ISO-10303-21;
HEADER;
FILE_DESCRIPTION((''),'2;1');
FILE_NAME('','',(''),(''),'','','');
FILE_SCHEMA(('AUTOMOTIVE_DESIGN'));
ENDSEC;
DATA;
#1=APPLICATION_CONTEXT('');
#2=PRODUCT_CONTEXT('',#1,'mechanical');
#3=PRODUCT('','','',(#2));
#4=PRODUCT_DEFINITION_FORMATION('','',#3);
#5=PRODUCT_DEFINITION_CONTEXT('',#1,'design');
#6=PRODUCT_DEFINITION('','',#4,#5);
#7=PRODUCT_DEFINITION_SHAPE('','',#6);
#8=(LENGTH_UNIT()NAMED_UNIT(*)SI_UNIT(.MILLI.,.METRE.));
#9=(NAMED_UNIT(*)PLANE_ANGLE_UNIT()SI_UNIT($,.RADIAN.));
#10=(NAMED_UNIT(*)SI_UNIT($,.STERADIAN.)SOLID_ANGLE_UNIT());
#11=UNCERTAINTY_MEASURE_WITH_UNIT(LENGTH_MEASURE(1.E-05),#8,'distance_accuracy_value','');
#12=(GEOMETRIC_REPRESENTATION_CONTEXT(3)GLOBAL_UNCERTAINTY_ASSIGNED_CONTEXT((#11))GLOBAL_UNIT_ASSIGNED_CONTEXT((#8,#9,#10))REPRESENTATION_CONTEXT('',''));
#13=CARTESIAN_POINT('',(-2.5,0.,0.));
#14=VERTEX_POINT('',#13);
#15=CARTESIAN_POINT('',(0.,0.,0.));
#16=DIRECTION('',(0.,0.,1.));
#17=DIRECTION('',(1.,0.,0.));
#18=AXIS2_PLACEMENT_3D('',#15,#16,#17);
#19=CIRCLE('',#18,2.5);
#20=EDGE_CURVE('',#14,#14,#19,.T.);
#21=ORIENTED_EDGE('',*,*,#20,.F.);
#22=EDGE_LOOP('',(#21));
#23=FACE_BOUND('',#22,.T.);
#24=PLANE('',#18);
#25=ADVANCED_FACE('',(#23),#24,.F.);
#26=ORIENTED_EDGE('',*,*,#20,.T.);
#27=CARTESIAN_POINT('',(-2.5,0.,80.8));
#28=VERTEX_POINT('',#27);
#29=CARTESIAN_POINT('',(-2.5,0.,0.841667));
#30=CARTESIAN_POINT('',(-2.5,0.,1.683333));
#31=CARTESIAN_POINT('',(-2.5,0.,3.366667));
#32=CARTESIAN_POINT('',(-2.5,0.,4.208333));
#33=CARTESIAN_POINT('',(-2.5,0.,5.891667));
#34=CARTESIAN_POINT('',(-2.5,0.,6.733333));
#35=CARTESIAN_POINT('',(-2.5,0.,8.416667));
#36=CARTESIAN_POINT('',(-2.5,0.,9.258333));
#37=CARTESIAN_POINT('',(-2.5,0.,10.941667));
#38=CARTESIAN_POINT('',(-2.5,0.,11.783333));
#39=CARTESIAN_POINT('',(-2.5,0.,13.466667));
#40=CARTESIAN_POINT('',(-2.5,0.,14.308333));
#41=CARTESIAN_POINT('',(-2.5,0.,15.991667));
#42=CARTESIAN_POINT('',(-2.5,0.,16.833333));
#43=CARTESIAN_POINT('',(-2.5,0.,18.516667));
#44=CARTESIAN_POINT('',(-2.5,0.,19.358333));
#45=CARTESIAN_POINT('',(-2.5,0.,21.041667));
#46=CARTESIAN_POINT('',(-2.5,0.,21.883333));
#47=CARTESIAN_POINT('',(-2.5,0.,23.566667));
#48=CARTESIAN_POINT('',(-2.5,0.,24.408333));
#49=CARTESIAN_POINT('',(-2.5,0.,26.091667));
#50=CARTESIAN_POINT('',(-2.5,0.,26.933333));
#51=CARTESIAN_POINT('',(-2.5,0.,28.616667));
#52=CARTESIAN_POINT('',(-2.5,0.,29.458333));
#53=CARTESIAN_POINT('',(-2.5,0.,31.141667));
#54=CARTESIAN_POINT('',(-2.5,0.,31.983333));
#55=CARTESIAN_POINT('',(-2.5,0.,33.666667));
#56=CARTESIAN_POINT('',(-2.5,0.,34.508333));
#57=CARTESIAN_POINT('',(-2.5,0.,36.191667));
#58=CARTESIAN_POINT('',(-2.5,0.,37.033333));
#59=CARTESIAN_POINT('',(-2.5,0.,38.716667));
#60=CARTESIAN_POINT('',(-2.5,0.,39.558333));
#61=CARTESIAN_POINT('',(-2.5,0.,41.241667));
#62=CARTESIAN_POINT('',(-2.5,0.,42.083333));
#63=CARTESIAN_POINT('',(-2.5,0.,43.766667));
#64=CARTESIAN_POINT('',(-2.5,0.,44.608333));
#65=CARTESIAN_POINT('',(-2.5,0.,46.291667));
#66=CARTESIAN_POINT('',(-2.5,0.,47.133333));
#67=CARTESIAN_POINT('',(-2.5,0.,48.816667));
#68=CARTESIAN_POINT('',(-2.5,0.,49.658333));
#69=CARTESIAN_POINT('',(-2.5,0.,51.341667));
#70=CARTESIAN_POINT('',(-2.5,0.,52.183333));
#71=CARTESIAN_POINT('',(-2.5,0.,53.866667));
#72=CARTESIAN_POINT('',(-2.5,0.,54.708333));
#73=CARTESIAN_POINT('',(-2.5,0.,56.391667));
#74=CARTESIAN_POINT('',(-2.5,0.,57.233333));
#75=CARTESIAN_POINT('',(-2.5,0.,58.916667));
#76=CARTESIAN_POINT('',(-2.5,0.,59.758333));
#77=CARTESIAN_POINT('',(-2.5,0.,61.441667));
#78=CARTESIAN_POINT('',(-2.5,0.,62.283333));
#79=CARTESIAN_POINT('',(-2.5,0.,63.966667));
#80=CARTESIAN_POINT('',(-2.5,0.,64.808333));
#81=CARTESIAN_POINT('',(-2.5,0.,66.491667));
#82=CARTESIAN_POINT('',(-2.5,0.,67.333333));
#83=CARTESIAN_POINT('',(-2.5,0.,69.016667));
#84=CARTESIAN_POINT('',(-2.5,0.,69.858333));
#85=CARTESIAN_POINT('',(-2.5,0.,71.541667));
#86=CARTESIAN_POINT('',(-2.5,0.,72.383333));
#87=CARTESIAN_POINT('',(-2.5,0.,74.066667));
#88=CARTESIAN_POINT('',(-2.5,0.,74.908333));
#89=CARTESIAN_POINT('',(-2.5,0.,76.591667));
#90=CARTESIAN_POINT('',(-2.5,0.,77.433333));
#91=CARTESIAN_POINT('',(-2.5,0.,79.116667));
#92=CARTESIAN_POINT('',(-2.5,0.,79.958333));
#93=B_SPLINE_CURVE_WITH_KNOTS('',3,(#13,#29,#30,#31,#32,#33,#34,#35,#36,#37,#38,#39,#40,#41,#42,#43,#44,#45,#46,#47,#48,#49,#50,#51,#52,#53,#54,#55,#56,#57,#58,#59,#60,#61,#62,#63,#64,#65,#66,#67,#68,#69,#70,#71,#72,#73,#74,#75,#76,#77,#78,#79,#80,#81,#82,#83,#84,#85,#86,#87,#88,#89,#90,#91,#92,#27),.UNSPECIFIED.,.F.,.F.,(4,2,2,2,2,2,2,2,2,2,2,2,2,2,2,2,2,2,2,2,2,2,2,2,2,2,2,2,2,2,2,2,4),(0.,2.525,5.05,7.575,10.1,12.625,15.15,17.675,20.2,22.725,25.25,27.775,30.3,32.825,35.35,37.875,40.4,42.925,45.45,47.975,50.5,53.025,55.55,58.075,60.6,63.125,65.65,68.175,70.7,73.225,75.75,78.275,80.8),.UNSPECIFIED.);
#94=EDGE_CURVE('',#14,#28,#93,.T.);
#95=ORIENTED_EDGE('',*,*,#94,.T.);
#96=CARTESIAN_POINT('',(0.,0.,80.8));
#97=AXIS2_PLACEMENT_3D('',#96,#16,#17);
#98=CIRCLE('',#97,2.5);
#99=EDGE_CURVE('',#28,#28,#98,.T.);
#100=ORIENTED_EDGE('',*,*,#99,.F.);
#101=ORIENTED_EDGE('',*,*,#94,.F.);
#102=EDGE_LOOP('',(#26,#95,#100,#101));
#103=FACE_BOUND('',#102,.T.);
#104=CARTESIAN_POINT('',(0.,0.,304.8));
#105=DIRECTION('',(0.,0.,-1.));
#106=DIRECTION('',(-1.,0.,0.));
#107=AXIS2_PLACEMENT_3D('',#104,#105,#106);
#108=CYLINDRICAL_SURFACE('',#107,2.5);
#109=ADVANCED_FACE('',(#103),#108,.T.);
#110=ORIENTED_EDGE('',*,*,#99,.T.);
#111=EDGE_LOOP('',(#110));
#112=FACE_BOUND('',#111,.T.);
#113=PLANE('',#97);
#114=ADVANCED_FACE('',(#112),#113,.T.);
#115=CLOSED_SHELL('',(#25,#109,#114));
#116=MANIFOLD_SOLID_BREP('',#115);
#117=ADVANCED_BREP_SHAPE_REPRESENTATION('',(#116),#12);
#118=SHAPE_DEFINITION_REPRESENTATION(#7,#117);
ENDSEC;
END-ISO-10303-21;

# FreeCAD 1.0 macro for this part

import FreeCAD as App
import Part
import Sketcher
from FreeCAD import Vector

doc = App.newDocument("Part")
body = doc.addObject("PartDesign::Body", "Body")

sketch1 = body.newObject("Sketcher::SketchObject", "Sketch")
sketch1.AttachmentSupport = (doc.getObject("XY_Plane"), [""])
sketch1.MapMode = "FlatFace"
sketch1.addGeometry(Part.Circle(Vector(0, 0, 0), Vector(0, 0, 1), 2.5), False)
sketch1.addConstraint(Sketcher.Constraint("Coincident", 0, 3, -1, 1))
sketch1.addConstraint(Sketcher.Constraint("Diameter", 0, 5.0))
pad1 = body.newObject("PartDesign::Pad", "Pad")
pad1.Profile = sketch1
pad1.Length = 304.8

sketch2 = body.newObject("Sketcher::SketchObject", "Sketch001")
sketch2.AttachmentSupport = (doc.getObject("XY_Plane"), [""])
sketch2.MapMode = "FlatFace"
sketch2.AttachmentOffset = App.Placement(Vector(0, 0, 80.8), App.Rotation())
sketch2.addGeometry(Part.Circle(Vector(0, 0, 0), Vector(0, 0, 1), 2.5), False)
sketch2.addConstraint(Sketcher.Constraint("Coincident", 0, 3, -1, 1))
sketch2.addConstraint(Sketcher.Constraint("Diameter", 0, 5.0))
pocket1 = body.newObject("PartDesign::Pocket", "Pocket")
pocket1.Profile = sketch2
pocket1.Length = 224
pocket1.Reversed = True

doc.recompute()
